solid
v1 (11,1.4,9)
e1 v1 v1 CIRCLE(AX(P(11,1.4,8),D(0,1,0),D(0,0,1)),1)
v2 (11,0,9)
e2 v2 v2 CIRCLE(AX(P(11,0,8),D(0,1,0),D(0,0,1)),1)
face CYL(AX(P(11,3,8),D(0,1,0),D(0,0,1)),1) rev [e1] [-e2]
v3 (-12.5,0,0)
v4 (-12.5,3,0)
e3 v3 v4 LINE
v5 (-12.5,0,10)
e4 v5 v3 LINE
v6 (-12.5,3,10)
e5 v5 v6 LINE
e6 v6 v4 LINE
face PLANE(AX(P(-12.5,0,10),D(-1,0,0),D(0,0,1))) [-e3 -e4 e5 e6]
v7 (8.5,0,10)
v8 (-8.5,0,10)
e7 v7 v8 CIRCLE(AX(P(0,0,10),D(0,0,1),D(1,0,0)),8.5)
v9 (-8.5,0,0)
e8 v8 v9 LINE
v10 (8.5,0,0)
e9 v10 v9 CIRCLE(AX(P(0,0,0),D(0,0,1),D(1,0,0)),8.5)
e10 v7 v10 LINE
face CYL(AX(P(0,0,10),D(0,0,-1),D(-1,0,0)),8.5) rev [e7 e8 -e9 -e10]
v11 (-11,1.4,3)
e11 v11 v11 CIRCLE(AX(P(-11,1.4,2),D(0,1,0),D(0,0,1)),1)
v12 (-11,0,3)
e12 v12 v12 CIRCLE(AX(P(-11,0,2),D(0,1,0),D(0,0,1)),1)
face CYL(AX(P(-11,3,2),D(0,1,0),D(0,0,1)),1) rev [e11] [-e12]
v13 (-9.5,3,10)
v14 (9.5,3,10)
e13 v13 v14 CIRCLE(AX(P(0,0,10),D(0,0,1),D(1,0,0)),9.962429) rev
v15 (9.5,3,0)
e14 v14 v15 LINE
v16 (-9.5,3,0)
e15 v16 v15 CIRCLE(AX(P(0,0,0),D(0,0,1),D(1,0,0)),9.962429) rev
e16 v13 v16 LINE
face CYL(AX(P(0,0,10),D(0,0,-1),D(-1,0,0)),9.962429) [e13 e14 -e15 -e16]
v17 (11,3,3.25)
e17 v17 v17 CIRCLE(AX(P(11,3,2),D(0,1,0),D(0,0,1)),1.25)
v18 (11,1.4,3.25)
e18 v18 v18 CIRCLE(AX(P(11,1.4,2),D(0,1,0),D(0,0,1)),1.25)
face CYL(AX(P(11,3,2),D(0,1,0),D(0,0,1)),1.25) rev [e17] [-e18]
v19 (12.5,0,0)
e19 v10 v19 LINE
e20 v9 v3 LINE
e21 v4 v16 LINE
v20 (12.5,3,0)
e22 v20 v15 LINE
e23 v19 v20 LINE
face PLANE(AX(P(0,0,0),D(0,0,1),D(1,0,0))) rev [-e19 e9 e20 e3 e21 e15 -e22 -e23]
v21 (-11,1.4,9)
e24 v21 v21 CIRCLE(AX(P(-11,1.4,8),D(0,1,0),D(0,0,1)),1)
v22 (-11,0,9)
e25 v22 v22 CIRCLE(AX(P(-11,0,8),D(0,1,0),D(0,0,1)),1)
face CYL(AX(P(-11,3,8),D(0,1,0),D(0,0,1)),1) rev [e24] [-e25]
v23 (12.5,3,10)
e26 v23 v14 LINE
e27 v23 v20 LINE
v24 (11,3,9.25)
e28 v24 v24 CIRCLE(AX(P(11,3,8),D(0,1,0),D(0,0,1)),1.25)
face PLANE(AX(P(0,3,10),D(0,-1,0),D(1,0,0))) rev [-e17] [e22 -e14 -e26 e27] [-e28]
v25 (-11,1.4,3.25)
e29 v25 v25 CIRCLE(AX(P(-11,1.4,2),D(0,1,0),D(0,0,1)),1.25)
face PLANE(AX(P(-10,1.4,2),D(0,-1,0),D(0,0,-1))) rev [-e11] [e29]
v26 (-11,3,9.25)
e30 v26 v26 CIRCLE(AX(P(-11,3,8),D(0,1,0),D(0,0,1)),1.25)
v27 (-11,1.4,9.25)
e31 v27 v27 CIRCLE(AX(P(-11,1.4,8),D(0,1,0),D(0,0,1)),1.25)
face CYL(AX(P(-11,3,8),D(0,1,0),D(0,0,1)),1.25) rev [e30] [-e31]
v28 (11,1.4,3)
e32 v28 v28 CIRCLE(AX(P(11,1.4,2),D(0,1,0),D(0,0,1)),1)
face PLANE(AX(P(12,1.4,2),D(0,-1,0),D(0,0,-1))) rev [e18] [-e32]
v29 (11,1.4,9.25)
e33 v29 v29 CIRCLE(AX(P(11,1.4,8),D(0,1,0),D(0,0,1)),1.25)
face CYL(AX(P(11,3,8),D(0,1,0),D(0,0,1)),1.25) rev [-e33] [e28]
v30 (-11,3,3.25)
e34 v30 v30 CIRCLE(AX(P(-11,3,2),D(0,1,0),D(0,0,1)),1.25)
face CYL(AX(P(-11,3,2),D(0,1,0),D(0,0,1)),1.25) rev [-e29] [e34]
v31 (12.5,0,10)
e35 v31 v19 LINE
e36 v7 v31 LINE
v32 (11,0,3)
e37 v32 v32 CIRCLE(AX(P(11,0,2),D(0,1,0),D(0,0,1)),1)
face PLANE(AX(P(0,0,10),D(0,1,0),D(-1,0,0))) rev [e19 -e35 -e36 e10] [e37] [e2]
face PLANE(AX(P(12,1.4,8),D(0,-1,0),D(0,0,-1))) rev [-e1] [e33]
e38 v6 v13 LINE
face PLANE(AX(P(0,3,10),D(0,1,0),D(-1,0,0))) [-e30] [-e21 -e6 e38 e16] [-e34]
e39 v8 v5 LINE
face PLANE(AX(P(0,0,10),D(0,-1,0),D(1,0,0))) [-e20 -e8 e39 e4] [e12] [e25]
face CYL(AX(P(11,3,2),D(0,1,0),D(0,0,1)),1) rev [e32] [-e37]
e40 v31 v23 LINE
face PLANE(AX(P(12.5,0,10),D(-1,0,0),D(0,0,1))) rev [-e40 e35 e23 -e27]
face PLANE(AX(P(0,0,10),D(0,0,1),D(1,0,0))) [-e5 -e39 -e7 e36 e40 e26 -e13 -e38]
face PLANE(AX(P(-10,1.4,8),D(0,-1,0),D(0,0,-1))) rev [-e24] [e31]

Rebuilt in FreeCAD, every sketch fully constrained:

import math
import FreeCAD as App
import Part
import Sketcher
Q = App.Units.Quantity

doc = App.newDocument("Part")
body = doc.addObject("PartDesign::Body", "Body")

sketch1 = doc.addObject("Sketcher::SketchObject", "Sketch")
body.addObject(sketch1)
sketch1.AttachmentSupport = (doc.XY_Plane, [""])
sketch1.MapMode = "FlatFace"
sketch1.addGeometry([
    Part.ArcOfCircle(Part.Circle(App.Vector(0, 0, 0), App.Vector(0, 0, 1), 10), math.radians(18), math.radians(162)),
    Part.LineSegment(App.Vector(-9.5, 3, 0), App.Vector(-12.5, 3, 0)),
    Part.LineSegment(App.Vector(-12.5, 3, 0), App.Vector(-12.5, 0, 0)),
    Part.LineSegment(App.Vector(-12.5, 0, 0), App.Vector(-8.5, 0, 0)),
    Part.ArcOfCircle(Part.Circle(App.Vector(0, 0, 0), App.Vector(0, 0, 1), 8.5), math.radians(0), math.radians(180)),
    Part.LineSegment(App.Vector(8.5, 0, 0), App.Vector(12.5, 0, 0)),
    Part.LineSegment(App.Vector(12.5, 0, 0), App.Vector(12.5, 3, 0)),
    Part.LineSegment(App.Vector(12.5, 3, 0), App.Vector(9.5, 3, 0)),
], False)
sketch1.addConstraint([
    Sketcher.Constraint("Coincident", 0, 2, 1, 1),
    Sketcher.Constraint("Coincident", 1, 2, 2, 1),
    Sketcher.Constraint("Coincident", 2, 2, 3, 1),
    Sketcher.Constraint("Coincident", 3, 2, 4, 2),
    Sketcher.Constraint("Coincident", 4, 1, 5, 1),
    Sketcher.Constraint("Coincident", 5, 2, 6, 1),
    Sketcher.Constraint("Coincident", 6, 2, 7, 1),
    Sketcher.Constraint("Coincident", 7, 2, 0, 1),
    Sketcher.Constraint("Horizontal", 1),
    Sketcher.Constraint("Vertical", 2),
    Sketcher.Constraint("Horizontal", 3),
    Sketcher.Constraint("Horizontal", 5),
    Sketcher.Constraint("Vertical", 6),
    Sketcher.Constraint("Horizontal", 7),
    Sketcher.Constraint("Coincident", 0, 3, -1, 1),
    Sketcher.Constraint("Coincident", 4, 3, -1, 1),
    Sketcher.Constraint("Symmetric", 2, 2, 5, 2, -1, 1),
    Sketcher.Constraint("PointOnObject", 2, 2, -1),
    Sketcher.Constraint("Horizontal", 1, 2, 6, 2),
    Sketcher.Constraint("Equal", 7, 2),
    Sketcher.Constraint("Radius", 4, Q("8.5 mm")),
    Sketcher.Constraint("DistanceX", 1, 2, 1, 1, Q("3 mm")),
    Sketcher.Constraint("DistanceX", 3, 1, 3, 2, Q("4 mm")),
])
pad1 = doc.addObject("PartDesign::Pad", "Pad")
body.addObject(pad1)
pad1.Profile = sketch1
pad1.Length = 10

sketch2 = doc.addObject("Sketcher::SketchObject", "Sketch001")
body.addObject(sketch2)
sketch2.AttachmentSupport = (doc.XZ_Plane, [""])
sketch2.MapMode = "FlatFace"
sketch2.AttachmentOffset = App.Placement(App.Vector(0, 0, -3), App.Rotation())
sketch2.addGeometry([
    Part.Circle(App.Vector(-11, 2, 0), App.Vector(0, 0, 1), 1),
    Part.Circle(App.Vector(-11, 8, 0), App.Vector(0, 0, 1), 1),
    Part.Circle(App.Vector(11, 2, 0), App.Vector(0, 0, 1), 1),
    Part.Circle(App.Vector(11, 8, 0), App.Vector(0, 0, 1), 1),
], False)
sketch2.addConstraint([
    Sketcher.Constraint("Equal", 0, 1),
    Sketcher.Constraint("Equal", 1, 2),
    Sketcher.Constraint("Equal", 2, 3),
    Sketcher.Constraint("Symmetric", 0, 3, 2, 3, -2),
    Sketcher.Constraint("Symmetric", 1, 3, 3, 3, -2),
    Sketcher.Constraint("Vertical", 0, 3, 1, 3),
    Sketcher.Constraint("Diameter", 0, Q("2 mm")),
    Sketcher.Constraint("DistanceX", 0, 3, -1, 1, Q("11 mm")),
    Sketcher.Constraint("DistanceY", -1, 1, 0, 3, Q("2 mm")),
    Sketcher.Constraint("DistanceY", -1, 1, 1, 3, Q("8 mm")),
])
doc.recompute()
hole = doc.addObject("PartDesign::Hole", "Hole")
body.addObject(hole)
hole.Profile = sketch2
hole.ThreadType = "None"
hole.Diameter = 2
hole.DepthType = "ThroughAll"
hole.HoleCutType = "Counterbore"
hole.HoleCutDiameter = 2.5
hole.HoleCutDepth = 1.6
hole.Reversed = True

doc.recompute()
